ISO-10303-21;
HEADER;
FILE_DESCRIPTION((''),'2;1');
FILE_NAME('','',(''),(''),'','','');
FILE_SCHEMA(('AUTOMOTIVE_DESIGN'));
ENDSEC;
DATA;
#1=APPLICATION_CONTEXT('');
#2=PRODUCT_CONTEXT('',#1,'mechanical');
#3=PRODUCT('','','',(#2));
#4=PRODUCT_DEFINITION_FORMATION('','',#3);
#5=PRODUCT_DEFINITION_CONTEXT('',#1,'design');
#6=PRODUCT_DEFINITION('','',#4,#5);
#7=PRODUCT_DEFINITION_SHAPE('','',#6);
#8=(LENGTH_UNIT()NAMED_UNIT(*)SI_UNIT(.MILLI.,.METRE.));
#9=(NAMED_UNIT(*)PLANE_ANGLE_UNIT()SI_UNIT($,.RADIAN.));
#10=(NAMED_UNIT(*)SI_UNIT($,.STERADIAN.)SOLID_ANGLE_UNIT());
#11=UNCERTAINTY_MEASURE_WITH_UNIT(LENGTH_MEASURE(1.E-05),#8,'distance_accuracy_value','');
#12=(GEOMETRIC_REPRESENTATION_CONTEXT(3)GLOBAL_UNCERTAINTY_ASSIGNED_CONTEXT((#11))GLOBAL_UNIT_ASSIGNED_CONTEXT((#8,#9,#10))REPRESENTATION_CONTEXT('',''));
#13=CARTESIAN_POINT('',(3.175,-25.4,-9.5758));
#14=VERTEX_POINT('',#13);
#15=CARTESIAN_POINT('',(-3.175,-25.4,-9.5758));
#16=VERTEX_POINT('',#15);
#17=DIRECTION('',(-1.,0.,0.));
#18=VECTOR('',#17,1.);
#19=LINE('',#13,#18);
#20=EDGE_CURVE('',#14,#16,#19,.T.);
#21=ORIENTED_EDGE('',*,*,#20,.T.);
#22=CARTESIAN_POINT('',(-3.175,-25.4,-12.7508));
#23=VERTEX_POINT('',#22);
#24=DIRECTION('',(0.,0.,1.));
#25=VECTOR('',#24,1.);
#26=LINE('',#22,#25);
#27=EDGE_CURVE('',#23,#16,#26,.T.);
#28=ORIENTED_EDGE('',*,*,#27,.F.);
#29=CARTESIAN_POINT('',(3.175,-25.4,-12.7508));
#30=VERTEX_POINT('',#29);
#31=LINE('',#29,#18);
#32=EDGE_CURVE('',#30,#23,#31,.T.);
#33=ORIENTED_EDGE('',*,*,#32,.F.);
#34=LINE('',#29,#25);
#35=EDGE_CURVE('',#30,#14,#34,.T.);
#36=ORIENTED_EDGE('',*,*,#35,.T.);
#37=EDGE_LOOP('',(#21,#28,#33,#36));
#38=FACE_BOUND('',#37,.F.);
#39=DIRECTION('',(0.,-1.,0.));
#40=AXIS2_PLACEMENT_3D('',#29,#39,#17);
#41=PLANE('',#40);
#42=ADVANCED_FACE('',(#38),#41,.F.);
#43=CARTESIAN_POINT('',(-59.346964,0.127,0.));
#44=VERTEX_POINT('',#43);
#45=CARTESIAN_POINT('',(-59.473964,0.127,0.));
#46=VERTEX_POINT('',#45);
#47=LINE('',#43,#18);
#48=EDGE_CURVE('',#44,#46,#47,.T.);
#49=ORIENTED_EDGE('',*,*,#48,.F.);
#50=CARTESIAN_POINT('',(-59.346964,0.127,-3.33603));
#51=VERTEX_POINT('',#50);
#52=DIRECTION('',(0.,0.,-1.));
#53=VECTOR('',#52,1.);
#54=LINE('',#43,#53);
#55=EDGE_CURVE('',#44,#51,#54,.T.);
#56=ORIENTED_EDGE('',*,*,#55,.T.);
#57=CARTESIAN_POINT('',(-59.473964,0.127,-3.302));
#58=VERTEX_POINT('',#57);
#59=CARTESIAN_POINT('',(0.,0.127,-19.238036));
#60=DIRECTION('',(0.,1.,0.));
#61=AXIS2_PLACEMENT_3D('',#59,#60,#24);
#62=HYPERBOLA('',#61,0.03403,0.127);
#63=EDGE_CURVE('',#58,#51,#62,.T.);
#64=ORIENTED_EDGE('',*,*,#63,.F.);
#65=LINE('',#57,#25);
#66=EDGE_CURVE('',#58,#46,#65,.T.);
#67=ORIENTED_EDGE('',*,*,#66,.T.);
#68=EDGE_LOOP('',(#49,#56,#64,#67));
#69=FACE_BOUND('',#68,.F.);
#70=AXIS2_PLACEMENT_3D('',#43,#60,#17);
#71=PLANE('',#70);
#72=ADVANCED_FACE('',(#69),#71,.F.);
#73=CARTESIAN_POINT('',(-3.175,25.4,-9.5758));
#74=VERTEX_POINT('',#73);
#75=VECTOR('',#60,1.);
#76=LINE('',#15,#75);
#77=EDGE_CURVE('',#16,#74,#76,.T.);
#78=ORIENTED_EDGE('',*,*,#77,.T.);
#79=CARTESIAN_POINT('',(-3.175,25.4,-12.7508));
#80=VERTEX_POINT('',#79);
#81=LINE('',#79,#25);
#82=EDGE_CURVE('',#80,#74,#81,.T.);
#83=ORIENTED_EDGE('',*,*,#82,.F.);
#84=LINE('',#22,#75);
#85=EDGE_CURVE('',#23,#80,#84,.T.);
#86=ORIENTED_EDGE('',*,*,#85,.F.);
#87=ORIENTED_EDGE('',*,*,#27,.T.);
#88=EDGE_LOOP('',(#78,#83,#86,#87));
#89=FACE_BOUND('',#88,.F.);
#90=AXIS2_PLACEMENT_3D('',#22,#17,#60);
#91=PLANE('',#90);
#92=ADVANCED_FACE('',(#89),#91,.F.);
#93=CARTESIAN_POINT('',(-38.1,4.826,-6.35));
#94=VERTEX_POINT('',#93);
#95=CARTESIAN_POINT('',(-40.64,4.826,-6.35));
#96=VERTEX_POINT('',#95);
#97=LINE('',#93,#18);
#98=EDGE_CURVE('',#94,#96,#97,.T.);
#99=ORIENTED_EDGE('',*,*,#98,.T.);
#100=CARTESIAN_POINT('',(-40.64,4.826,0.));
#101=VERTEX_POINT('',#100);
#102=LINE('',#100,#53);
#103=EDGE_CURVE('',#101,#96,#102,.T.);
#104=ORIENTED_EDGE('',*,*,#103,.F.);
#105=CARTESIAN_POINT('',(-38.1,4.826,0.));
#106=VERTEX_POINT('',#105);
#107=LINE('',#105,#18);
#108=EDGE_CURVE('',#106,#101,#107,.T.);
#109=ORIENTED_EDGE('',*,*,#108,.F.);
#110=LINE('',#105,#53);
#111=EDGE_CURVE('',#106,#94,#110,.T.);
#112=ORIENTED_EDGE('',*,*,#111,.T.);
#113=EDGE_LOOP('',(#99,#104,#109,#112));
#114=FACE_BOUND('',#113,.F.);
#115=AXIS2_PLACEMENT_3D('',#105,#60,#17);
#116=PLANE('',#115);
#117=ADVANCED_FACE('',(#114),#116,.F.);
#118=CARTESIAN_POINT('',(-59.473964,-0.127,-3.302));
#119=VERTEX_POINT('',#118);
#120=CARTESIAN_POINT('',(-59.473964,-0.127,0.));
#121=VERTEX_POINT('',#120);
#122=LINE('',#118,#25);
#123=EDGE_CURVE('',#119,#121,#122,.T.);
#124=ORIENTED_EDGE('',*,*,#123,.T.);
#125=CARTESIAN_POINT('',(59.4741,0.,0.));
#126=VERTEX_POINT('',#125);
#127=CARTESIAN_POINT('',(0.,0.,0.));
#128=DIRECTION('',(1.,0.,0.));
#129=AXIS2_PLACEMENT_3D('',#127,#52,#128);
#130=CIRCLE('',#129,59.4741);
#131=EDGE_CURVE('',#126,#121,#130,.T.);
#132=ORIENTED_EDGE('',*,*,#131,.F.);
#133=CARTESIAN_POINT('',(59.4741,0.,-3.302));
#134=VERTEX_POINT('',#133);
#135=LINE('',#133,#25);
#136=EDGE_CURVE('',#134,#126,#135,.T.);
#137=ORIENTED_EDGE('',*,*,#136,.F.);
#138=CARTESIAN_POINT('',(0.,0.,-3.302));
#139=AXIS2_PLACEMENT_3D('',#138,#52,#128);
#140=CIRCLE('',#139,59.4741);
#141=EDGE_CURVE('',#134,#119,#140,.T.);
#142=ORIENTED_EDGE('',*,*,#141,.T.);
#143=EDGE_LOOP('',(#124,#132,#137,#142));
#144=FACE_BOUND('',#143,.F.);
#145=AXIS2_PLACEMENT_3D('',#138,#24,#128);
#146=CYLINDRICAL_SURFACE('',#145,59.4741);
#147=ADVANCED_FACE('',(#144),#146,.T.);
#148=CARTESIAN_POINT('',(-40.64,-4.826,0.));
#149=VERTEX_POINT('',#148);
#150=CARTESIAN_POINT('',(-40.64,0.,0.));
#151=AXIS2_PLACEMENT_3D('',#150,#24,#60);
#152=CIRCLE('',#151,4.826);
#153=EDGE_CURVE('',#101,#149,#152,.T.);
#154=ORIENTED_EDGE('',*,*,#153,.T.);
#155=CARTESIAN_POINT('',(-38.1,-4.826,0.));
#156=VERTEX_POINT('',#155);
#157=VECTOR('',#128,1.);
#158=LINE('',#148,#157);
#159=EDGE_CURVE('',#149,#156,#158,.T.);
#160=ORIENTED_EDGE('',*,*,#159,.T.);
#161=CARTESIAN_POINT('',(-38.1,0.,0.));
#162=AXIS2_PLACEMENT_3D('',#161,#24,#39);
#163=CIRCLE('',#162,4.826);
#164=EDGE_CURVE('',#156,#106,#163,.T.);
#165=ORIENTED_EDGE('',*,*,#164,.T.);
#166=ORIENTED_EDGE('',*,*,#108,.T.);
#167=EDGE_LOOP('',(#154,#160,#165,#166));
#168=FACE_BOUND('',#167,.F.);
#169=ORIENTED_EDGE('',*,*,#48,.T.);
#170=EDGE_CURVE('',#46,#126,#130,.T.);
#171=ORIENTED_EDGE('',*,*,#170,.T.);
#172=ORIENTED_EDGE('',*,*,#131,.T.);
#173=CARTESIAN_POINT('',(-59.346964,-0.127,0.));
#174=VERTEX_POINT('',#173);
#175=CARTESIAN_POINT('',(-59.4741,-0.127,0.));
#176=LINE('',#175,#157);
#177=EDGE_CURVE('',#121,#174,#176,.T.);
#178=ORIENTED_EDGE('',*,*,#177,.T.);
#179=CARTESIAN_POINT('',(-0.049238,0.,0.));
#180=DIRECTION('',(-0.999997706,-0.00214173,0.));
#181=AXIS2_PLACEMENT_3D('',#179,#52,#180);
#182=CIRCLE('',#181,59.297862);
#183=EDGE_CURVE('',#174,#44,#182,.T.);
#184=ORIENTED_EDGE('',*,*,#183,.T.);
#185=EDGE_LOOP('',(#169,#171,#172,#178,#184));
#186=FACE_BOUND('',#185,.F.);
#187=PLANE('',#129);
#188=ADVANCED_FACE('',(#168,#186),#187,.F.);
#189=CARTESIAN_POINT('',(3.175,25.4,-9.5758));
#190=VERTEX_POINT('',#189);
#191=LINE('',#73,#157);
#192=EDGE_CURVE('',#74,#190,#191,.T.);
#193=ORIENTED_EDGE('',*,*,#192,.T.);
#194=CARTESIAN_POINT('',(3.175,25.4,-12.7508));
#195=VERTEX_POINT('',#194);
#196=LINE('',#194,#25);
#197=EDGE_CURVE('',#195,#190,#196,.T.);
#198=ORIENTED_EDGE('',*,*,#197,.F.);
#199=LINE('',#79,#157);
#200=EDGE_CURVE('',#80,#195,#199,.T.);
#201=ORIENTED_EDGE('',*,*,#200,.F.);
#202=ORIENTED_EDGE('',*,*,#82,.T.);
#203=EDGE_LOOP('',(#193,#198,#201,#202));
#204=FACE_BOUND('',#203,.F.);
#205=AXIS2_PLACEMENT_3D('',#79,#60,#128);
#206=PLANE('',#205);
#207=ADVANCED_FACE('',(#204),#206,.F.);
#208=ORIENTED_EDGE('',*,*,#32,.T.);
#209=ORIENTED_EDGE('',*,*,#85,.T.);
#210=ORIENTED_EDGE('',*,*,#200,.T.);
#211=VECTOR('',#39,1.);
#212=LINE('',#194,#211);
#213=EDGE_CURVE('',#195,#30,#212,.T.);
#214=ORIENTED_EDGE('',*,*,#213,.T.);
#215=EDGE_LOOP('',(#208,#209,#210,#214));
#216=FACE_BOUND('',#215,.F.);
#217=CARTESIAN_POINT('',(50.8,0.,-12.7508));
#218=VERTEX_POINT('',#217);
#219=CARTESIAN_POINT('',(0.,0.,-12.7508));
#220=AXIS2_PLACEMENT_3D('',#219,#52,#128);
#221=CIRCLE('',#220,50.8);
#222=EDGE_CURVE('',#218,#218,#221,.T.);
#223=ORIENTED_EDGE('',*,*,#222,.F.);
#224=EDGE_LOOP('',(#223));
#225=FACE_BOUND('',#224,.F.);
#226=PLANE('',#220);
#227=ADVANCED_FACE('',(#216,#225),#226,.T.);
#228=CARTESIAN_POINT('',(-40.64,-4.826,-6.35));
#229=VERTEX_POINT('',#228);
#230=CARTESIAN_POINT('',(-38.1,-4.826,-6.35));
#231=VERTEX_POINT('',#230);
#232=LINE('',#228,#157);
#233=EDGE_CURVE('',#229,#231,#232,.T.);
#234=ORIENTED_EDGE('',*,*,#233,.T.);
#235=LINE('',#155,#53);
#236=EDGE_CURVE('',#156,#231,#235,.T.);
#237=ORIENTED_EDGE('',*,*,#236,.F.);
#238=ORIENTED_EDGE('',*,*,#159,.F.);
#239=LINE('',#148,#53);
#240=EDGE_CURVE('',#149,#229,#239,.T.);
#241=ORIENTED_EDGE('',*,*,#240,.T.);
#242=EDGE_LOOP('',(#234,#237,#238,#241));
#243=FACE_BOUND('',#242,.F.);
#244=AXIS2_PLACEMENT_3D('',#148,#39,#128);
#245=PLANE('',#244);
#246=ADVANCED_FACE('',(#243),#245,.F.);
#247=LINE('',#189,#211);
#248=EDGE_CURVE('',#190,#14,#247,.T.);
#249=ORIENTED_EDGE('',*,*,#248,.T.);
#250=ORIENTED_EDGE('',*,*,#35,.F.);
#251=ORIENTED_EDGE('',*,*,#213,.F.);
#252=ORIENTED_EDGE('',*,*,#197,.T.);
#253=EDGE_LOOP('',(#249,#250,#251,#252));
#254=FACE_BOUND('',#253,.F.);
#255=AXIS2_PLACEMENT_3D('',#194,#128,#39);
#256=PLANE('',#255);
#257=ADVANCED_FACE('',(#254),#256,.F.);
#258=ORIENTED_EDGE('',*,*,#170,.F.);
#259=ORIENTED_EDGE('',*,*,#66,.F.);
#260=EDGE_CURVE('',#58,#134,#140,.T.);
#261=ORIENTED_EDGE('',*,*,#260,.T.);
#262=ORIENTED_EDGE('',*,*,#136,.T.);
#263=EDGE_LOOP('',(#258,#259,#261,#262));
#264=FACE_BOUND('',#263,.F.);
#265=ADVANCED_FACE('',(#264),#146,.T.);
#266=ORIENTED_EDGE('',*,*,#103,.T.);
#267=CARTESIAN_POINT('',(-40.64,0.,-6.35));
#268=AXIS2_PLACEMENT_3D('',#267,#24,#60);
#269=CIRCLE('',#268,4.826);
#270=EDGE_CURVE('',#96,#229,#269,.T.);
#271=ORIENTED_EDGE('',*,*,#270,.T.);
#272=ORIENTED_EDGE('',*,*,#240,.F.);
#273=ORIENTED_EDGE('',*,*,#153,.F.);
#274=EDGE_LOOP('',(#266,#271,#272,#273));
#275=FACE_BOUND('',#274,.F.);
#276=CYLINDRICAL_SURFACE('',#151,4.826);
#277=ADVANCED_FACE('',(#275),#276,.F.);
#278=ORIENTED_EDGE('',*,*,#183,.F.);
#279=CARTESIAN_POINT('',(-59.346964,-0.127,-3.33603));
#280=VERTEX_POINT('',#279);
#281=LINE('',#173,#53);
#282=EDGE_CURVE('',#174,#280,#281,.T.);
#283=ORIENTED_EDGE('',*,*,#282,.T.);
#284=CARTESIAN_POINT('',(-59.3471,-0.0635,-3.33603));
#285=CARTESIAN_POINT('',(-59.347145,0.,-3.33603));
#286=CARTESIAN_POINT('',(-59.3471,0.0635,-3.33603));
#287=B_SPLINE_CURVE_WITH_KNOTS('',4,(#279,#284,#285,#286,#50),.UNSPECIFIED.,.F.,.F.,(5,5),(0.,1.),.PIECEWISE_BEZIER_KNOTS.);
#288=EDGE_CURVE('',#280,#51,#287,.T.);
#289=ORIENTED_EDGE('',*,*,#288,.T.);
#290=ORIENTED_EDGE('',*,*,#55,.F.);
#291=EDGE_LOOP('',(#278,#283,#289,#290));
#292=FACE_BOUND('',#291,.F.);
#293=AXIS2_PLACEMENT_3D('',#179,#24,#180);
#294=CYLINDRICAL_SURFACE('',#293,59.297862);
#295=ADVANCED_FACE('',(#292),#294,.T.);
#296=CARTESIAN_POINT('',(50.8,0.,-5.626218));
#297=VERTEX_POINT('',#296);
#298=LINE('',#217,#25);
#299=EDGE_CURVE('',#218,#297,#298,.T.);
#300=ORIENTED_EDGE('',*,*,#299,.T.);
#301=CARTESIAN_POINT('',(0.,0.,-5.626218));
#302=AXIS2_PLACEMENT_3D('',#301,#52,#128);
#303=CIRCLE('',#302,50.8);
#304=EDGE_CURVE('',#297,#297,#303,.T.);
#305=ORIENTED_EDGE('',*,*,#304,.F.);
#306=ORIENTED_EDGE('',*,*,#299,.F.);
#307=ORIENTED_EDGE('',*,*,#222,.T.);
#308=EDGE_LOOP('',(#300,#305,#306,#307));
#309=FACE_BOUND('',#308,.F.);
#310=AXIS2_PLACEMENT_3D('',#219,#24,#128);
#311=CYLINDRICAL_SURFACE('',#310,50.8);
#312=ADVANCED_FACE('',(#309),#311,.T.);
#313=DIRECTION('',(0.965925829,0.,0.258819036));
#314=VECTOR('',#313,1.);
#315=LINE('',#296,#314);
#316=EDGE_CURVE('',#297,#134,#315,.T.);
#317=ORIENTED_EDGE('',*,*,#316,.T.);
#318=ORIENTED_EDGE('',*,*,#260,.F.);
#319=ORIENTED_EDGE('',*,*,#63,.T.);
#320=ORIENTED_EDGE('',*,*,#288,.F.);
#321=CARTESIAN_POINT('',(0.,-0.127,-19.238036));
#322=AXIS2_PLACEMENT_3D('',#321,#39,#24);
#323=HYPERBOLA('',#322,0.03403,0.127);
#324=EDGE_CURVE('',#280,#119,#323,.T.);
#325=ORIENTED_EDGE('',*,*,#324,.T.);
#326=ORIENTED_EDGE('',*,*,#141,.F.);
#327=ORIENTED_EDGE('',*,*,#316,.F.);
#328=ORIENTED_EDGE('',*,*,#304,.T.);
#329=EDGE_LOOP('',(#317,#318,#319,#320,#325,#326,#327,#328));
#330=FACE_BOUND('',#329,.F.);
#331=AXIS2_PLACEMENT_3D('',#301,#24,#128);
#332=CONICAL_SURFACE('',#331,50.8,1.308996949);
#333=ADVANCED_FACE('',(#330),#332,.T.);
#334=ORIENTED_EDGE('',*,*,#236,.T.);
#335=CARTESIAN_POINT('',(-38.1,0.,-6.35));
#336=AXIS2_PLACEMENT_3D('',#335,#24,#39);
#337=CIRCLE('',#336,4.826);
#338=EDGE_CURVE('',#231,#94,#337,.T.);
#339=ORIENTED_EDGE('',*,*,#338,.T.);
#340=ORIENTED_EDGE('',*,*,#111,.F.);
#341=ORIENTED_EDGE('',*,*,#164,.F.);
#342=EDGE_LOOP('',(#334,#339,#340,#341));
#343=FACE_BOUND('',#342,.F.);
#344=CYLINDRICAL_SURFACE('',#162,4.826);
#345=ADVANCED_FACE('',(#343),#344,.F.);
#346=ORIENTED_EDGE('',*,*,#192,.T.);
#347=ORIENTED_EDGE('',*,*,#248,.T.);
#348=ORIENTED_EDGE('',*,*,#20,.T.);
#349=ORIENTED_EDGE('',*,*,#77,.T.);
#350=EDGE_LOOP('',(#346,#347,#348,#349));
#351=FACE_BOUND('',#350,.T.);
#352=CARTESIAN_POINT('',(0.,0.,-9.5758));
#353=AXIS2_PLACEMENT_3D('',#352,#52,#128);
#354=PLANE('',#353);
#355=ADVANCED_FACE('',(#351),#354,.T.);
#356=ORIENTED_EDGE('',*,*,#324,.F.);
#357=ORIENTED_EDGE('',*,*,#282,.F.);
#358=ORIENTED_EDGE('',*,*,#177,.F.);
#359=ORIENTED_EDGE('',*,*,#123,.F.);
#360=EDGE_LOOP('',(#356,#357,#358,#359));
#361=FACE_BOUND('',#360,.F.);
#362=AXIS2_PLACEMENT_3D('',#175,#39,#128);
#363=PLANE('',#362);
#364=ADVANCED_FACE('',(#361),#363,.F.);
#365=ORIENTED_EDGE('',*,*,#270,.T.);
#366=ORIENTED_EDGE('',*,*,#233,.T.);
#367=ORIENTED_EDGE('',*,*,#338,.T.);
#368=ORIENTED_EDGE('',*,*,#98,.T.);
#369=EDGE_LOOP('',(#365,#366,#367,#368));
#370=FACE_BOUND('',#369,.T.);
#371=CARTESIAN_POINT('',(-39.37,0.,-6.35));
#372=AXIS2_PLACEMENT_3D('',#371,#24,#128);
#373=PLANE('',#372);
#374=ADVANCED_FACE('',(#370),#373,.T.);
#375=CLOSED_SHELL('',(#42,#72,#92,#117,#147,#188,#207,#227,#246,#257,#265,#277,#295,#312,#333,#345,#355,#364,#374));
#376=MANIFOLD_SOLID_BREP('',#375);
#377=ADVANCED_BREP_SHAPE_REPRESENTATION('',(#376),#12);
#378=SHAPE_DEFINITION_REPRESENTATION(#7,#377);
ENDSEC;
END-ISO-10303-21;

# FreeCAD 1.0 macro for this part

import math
import FreeCAD as App
import Part
import Sketcher
Q = App.Units.Quantity

doc = App.newDocument("Part")
body = doc.addObject("PartDesign::Body", "Body")

sketch1 = body.newObject("Sketcher::SketchObject", "Sketch")
sketch1.AttachmentSupport = (doc.getObject("XZ_Plane"), [""])
sketch1.MapMode = "FlatFace"
sketch1.addGeometry(Part.LineSegment(App.Vector(59.4741, 0, 0), App.Vector(0, 0, 0)), False)
sketch1.addGeometry(Part.LineSegment(App.Vector(0, 0, 0), App.Vector(0, -12.7508, 0)), False)
sketch1.addGeometry(Part.LineSegment(App.Vector(0, -12.7508, 0), App.Vector(50.8, -12.7508, 0)), False)
sketch1.addGeometry(Part.LineSegment(App.Vector(50.8, -12.7508, 0), App.Vector(50.8, -5.626218, 0)), False)
sketch1.addGeometry(Part.LineSegment(App.Vector(50.8, -5.626218, 0), App.Vector(59.4741, -3.302, 0)), False)
sketch1.addGeometry(Part.LineSegment(App.Vector(59.4741, -3.302, 0), App.Vector(59.4741, 0, 0)), False)
sketch1.addConstraint(Sketcher.Constraint("Coincident", 0, 2, 1, 1))
sketch1.addConstraint(Sketcher.Constraint("Coincident", 1, 2, 2, 1))
sketch1.addConstraint(Sketcher.Constraint("Coincident", 2, 2, 3, 1))
sketch1.addConstraint(Sketcher.Constraint("Coincident", 3, 2, 4, 1))
sketch1.addConstraint(Sketcher.Constraint("Coincident", 4, 2, 5, 1))
sketch1.addConstraint(Sketcher.Constraint("Coincident", 5, 2, 0, 1))
sketch1.addConstraint(Sketcher.Constraint("Horizontal", 0))
sketch1.addConstraint(Sketcher.Constraint("Vertical", 1))
sketch1.addConstraint(Sketcher.Constraint("Horizontal", 2))
sketch1.addConstraint(Sketcher.Constraint("Vertical", 3))
sketch1.addConstraint(Sketcher.Constraint("Vertical", 5))
sketch1.addConstraint(Sketcher.Constraint("Coincident", 0, 2, -1, 1))
sketch1.addConstraint(Sketcher.Constraint("DistanceX", 2, 1, 2, 2, Q("2 in")))
sketch1.addConstraint(Sketcher.Constraint("Angle", 4, Q("14.999999 deg")))
sketch1.addConstraint(Sketcher.Constraint("DistanceY", 5, 1, 5, 2, Q("0.13 in")))
sketch1.addConstraint(Sketcher.Constraint("DistanceY", 1, 2, 1, 1, Q("0.502 in")))
sketch1.addConstraint(Sketcher.Constraint("DistanceX", 0, 2, 0, 1, Q("2.3415 in")))
revolution = body.newObject("PartDesign::Revolution", "Revolution")
revolution.Profile = sketch1
revolution.ReferenceAxis = (sketch1, ["V_Axis"])
revolution.Angle = 360

sketch2 = body.newObject("Sketcher::SketchObject", "Sketch001")
sketch2.AttachmentSupport = (doc.getObject("XY_Plane"), [""])
sketch2.MapMode = "FlatFace"
sketch2.addGeometry(Part.LineSegment(App.Vector(-40.64, -4.826, 0), App.Vector(-38.1, -4.826, 0)), False)
sketch2.addGeometry(Part.ArcOfCircle(Part.Circle(App.Vector(-38.1, 0, 0), App.Vector(0, 0, 1), 4.826), math.radians(-90), math.radians(90)), False)
sketch2.addGeometry(Part.LineSegment(App.Vector(-38.1, 4.826, 0), App.Vector(-40.64, 4.826, 0)), False)
sketch2.addGeometry(Part.ArcOfCircle(Part.Circle(App.Vector(-40.64, 0, 0), App.Vector(0, 0, 1), 4.826), math.radians(90), math.radians(270)), False)
sketch2.addConstraint(Sketcher.Constraint("Tangent", 0, 2, 1, 1))
sketch2.addConstraint(Sketcher.Constraint("Tangent", 1, 2, 2, 1))
sketch2.addConstraint(Sketcher.Constraint("Tangent", 2, 2, 3, 1))
sketch2.addConstraint(Sketcher.Constraint("Tangent", 3, 2, 0, 1))
sketch2.addConstraint(Sketcher.Constraint("Horizontal", 0))
sketch2.addConstraint(Sketcher.Constraint("Horizontal", 2))
sketch2.addConstraint(Sketcher.Constraint("PointOnObject", 1, 3, -1))
sketch2.addConstraint(Sketcher.Constraint("Radius", 1, Q("0.19 in")))
sketch2.addConstraint(Sketcher.Constraint("DistanceX", 0, 1, 0, 2, Q("0.1 in")))
sketch2.addConstraint(Sketcher.Constraint("DistanceX", 1, 3, -1, 1, Q("1.5 in")))
pocket1 = body.newObject("PartDesign::Pocket", "Pocket")
pocket1.Profile = sketch2
pocket1.Length = Q("0.25 in")

sketch3 = body.newObject("Sketcher::SketchObject", "Sketch002")
sketch3.AttachmentSupport = (doc.getObject("XY_Plane"), [""])
sketch3.MapMode = "FlatFace"
sketch3.addGeometry(Part.ArcOfCircle(Part.Circle(App.Vector(-0.049238, 0, 0), App.Vector(0, 0, 1), 59.297862), math.radians(179.877288), math.radians(180.122712)), False)
sketch3.addGeometry(Part.LineSegment(App.Vector(-59.346964, 0.127, 0), App.Vector(-59.4741, 0.127, 0)), False)
sketch3.addGeometry(Part.LineSegment(App.Vector(-59.4741, 0.127, 0), App.Vector(-59.4741, -0.127, 0)), False)
sketch3.addGeometry(Part.LineSegment(App.Vector(-59.4741, -0.127, 0), App.Vector(-59.346964, -0.127, 0)), False)
sketch3.addConstraint(Sketcher.Constraint("Coincident", 0, 1, 1, 1))
sketch3.addConstraint(Sketcher.Constraint("Coincident", 1, 2, 2, 1))
sketch3.addConstraint(Sketcher.Constraint("Coincident", 2, 2, 3, 1))
sketch3.addConstraint(Sketcher.Constraint("Coincident", 3, 2, 0, 2))
sketch3.addConstraint(Sketcher.Constraint("Horizontal", 1))
sketch3.addConstraint(Sketcher.Constraint("Vertical", 2))
sketch3.addConstraint(Sketcher.Constraint("Horizontal", 3))
sketch3.addConstraint(Sketcher.Constraint("Symmetric", 0, 1, 3, 2, -1))
sketch3.addConstraint(Sketcher.Constraint("DistanceY", 2, 2, 2, 1, Q("0.01 in")))
sketch3.addConstraint(Sketcher.Constraint("DistanceX", 1, 2, -1, 1, Q("2.3415 in")))
sketch3.addConstraint(Sketcher.Constraint("Radius", 0, Q("59.297862 mm")))
sketch3.addConstraint(Sketcher.Constraint("DistanceX", 1, 2, 1, 1, Q("0.127136 mm")))
pocket2 = body.newObject("PartDesign::Pocket", "Pocket001")
pocket2.Profile = sketch3
pocket2.Length = Q("1 in")

sketch4 = body.newObject("Sketcher::SketchObject", "Sketch003")
sketch4.AttachmentSupport = (doc.getObject("XY_Plane"), [""])
sketch4.MapMode = "FlatFace"
sketch4.AttachmentOffset = App.Placement(App.Vector(0, 0, -0.502 * 25.4), App.Rotation())
sketch4.addGeometry(Part.LineSegment(App.Vector(3.175, 25.4, 0), App.Vector(3.175, -25.4, 0)), False)
sketch4.addGeometry(Part.LineSegment(App.Vector(3.175, -25.4, 0), App.Vector(-3.175, -25.4, 0)), False)
sketch4.addGeometry(Part.LineSegment(App.Vector(-3.175, -25.4, 0), App.Vector(-3.175, 25.4, 0)), False)
sketch4.addGeometry(Part.LineSegment(App.Vector(-3.175, 25.4, 0), App.Vector(3.175, 25.4, 0)), False)
sketch4.addConstraint(Sketcher.Constraint("Coincident", 0, 2, 1, 1))
sketch4.addConstraint(Sketcher.Constraint("Coincident", 1, 2, 2, 1))
sketch4.addConstraint(Sketcher.Constraint("Coincident", 2, 2, 3, 1))
sketch4.addConstraint(Sketcher.Constraint("Coincident", 3, 2, 0, 1))
sketch4.addConstraint(Sketcher.Constraint("Vertical", 0))
sketch4.addConstraint(Sketcher.Constraint("Horizontal", 1))
sketch4.addConstraint(Sketcher.Constraint("Vertical", 2))
sketch4.addConstraint(Sketcher.Constraint("Horizontal", 3))
sketch4.addConstraint(Sketcher.Constraint("Symmetric", 0, 2, 2, 2, -1, 1))
sketch4.addConstraint(Sketcher.Constraint("DistanceY", 0, 2, 0, 1, Q("2 in")))
sketch4.addConstraint(Sketcher.Constraint("DistanceX", 1, 2, 1, 1, Q("0.25 in")))
pocket3 = body.newObject("PartDesign::Pocket", "Pocket002")
pocket3.Profile = sketch4
pocket3.Length = Q("0.125 in")
pocket3.Reversed = True

doc.recompute()
